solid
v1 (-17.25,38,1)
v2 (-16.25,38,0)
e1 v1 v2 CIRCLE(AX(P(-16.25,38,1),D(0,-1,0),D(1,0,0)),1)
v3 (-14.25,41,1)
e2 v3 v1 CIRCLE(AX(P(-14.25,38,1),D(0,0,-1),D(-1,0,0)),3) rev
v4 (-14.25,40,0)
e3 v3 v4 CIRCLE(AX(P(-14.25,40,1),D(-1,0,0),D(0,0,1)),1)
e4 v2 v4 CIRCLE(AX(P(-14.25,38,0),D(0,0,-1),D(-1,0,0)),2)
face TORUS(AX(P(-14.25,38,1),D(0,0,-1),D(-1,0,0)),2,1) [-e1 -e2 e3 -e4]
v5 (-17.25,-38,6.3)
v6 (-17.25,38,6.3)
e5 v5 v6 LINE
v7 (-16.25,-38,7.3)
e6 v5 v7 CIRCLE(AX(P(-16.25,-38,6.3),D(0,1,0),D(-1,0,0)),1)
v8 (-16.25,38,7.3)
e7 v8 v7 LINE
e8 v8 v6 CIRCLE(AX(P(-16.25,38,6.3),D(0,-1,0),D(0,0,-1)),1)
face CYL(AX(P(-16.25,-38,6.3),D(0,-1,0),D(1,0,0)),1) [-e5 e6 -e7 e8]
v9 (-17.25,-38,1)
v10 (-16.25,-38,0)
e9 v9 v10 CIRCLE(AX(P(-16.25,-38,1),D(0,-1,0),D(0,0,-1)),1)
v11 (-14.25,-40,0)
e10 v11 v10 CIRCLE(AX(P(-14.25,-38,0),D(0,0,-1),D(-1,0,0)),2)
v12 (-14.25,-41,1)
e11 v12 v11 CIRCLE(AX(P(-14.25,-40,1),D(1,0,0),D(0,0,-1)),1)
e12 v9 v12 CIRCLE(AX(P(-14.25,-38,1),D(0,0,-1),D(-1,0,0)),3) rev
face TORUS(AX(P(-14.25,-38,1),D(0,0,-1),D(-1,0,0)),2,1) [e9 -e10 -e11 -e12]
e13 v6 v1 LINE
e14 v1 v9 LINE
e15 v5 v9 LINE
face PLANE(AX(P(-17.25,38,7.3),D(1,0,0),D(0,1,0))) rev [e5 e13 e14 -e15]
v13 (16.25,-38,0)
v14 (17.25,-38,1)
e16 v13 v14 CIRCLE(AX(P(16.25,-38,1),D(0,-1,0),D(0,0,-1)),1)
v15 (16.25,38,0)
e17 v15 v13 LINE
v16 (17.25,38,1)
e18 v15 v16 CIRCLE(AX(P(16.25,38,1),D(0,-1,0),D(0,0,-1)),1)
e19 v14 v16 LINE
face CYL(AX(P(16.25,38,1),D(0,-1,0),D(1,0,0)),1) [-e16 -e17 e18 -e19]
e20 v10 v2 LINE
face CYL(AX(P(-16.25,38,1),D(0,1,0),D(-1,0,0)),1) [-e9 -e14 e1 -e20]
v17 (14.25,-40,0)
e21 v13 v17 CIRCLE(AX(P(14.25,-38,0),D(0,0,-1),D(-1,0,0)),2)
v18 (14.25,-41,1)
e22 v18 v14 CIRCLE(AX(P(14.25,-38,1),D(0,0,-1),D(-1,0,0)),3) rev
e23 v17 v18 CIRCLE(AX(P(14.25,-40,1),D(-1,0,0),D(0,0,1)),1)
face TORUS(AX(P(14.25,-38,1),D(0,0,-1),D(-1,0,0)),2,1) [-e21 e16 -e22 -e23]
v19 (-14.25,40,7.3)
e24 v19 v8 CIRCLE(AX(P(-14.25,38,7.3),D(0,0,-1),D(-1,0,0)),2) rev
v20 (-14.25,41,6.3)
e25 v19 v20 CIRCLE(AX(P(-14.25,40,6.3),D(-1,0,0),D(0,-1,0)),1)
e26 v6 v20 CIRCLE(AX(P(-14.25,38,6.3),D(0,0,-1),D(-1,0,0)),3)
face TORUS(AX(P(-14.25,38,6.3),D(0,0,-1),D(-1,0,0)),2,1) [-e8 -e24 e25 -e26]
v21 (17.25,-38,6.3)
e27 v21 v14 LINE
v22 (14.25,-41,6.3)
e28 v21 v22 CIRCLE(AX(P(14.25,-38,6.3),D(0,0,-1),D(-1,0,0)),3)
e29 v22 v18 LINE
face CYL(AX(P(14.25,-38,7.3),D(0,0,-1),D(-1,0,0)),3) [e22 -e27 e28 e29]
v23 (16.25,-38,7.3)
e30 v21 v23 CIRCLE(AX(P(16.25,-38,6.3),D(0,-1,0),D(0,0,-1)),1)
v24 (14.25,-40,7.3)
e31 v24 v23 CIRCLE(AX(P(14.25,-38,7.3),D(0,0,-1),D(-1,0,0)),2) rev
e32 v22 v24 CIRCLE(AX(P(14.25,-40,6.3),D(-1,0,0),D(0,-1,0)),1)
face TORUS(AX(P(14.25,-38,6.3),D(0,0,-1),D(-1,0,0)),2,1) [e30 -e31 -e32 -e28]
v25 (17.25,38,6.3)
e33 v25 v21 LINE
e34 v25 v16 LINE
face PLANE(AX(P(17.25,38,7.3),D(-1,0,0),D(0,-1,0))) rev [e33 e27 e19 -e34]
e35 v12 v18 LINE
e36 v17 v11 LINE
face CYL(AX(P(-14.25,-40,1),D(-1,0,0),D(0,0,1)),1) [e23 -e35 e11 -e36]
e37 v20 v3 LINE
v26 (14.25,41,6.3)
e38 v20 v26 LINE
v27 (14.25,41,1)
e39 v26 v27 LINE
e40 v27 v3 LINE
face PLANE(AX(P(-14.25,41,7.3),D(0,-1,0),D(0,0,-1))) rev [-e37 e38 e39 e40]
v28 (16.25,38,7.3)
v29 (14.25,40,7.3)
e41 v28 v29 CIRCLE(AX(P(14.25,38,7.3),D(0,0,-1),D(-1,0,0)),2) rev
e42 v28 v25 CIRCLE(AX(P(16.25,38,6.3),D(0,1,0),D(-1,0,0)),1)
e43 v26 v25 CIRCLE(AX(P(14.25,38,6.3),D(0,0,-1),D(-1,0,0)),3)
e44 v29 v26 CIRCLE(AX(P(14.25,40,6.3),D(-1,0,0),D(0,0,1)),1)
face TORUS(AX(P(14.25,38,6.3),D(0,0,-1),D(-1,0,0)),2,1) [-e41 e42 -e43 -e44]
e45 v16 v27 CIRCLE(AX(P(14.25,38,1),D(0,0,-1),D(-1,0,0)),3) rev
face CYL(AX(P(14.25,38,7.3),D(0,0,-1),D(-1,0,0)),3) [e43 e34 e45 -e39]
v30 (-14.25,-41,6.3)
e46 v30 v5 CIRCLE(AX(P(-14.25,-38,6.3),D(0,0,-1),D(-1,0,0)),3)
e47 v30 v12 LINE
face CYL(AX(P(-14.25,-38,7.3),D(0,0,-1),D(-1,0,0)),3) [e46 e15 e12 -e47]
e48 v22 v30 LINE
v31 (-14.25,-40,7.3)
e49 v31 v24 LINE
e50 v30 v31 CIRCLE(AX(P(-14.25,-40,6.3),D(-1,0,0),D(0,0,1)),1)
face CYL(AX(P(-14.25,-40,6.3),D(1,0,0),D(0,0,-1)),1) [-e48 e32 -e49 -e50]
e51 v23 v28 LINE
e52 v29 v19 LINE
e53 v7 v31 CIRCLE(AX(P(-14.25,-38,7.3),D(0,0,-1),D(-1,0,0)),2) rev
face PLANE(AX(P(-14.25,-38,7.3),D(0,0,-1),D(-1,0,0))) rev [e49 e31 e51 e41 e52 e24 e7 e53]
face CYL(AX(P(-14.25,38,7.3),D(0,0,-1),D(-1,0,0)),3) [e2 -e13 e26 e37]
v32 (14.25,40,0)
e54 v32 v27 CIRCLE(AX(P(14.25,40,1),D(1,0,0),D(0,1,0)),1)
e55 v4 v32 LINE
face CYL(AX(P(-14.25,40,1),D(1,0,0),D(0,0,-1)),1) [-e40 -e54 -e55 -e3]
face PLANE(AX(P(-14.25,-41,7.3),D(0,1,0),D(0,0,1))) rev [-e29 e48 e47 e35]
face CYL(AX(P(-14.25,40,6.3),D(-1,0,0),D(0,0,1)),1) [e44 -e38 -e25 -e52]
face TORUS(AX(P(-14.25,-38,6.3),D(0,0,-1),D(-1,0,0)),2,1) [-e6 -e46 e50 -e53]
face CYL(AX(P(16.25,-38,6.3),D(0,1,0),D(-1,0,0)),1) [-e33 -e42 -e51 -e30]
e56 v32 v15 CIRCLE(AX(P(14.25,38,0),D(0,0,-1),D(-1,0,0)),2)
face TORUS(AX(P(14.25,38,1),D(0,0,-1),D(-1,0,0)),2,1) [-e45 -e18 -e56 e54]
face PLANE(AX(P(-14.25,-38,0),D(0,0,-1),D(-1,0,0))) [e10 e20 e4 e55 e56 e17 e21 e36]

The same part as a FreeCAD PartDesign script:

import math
import FreeCAD as App
import Part
import Sketcher
from FreeCAD import Vector


def edges_at(feature, points):
    """Names of the edges that pass closest to the given points."""
    edges = feature.Shape.Edges
    near = lambda p: min(range(len(edges)), key=lambda i: edges[i].distToShape(Part.Vertex(*p))[0])
    return sorted({f"Edge{near(p) + 1}" for p in points})

doc = App.newDocument("Part")
body = doc.addObject("PartDesign::Body", "Body")

sketch1 = body.newObject("Sketcher::SketchObject", "Sketch")
sketch1.AttachmentSupport = (doc.getObject("XY_Plane"), [""])
sketch1.MapMode = "FlatFace"
sketch1.addGeometry([
    Part.LineSegment(Vector(14.2, 41, 0), Vector(-14.2, 41, 0)),
    Part.ArcOfCircle(Part.Circle(Vector(-14.3, 38, 0), Vector(0, 0, 1), 3), math.radians(90), math.radians(180)),
    Part.LineSegment(Vector(-17.2, 38, 0), Vector(-17.2, -38, 0)),
    Part.ArcOfCircle(Part.Circle(Vector(-14.3, -38, 0), Vector(0, 0, 1), 3), math.radians(180), math.radians(270)),
    Part.LineSegment(Vector(-14.2, -41, 0), Vector(14.2, -41, 0)),
    Part.ArcOfCircle(Part.Circle(Vector(14.3, -38, 0), Vector(0, 0, 1), 3), math.radians(-90), math.radians(0)),
    Part.LineSegment(Vector(17.2, -38, 0), Vector(17.2, 38, 0)),
    Part.ArcOfCircle(Part.Circle(Vector(14.3, 38, 0), Vector(0, 0, 1), 3), math.radians(0), math.radians(90)),
], False)
sketch1.addConstraint([
    Sketcher.Constraint("Tangent", 0, 2, 1, 1),
    Sketcher.Constraint("Tangent", 1, 2, 2, 1),
    Sketcher.Constraint("Tangent", 2, 2, 3, 1),
    Sketcher.Constraint("Tangent", 3, 2, 4, 1),
    Sketcher.Constraint("Tangent", 4, 2, 5, 1),
    Sketcher.Constraint("Tangent", 5, 2, 6, 1),
    Sketcher.Constraint("Tangent", 6, 2, 7, 1),
    Sketcher.Constraint("Tangent", 7, 2, 0, 1),
    Sketcher.Constraint("Horizontal", 0),
    Sketcher.Constraint("Vertical", 2),
    Sketcher.Constraint("Horizontal", 4),
    Sketcher.Constraint("Vertical", 6),
    Sketcher.Constraint("Equal", 1, 3),
    Sketcher.Constraint("Equal", 3, 5),
    Sketcher.Constraint("Equal", 5, 7),
    Sketcher.Constraint("Symmetric", 1, 3, 5, 3, -1, 1),
    Sketcher.Constraint("Radius", 1, 3.0),
    Sketcher.Constraint("DistanceY", 2, 2, 2, 1, 76.0),
    Sketcher.Constraint("DistanceX", 0, 2, 0, 1, 28.5),
])
pad1 = body.newObject("PartDesign::Pad", "Pad")
pad1.Profile = sketch1
pad1.Length = 7.3
doc.recompute()

fillet = body.newObject("PartDesign::Fillet", "Fillet")
fillet.Base = (pad1, edges_at(pad1, [
    (17.25, 0, 0),
    (16.371, -40.121, 0),
    (0, -41, 0),
    (-16.371, -40.121, 0),
    (16.371, -40.121, 7.3),
    (17.25, 0, 7.3),
    (16.371, 40.121, 7.3),
    (0, 41, 7.3),
    (-16.371, 40.121, 7.3),
    (-17.25, 0, 7.3),
    (-16.371, -40.121, 7.3),
    (-17.25, 0, 0),
    (0, -41, 7.3),
    (-16.371, 40.121, 0),
    (0, 41, 0),
    (16.371, 40.121, 0),
]))
fillet.Radius = 1

doc.recompute()
